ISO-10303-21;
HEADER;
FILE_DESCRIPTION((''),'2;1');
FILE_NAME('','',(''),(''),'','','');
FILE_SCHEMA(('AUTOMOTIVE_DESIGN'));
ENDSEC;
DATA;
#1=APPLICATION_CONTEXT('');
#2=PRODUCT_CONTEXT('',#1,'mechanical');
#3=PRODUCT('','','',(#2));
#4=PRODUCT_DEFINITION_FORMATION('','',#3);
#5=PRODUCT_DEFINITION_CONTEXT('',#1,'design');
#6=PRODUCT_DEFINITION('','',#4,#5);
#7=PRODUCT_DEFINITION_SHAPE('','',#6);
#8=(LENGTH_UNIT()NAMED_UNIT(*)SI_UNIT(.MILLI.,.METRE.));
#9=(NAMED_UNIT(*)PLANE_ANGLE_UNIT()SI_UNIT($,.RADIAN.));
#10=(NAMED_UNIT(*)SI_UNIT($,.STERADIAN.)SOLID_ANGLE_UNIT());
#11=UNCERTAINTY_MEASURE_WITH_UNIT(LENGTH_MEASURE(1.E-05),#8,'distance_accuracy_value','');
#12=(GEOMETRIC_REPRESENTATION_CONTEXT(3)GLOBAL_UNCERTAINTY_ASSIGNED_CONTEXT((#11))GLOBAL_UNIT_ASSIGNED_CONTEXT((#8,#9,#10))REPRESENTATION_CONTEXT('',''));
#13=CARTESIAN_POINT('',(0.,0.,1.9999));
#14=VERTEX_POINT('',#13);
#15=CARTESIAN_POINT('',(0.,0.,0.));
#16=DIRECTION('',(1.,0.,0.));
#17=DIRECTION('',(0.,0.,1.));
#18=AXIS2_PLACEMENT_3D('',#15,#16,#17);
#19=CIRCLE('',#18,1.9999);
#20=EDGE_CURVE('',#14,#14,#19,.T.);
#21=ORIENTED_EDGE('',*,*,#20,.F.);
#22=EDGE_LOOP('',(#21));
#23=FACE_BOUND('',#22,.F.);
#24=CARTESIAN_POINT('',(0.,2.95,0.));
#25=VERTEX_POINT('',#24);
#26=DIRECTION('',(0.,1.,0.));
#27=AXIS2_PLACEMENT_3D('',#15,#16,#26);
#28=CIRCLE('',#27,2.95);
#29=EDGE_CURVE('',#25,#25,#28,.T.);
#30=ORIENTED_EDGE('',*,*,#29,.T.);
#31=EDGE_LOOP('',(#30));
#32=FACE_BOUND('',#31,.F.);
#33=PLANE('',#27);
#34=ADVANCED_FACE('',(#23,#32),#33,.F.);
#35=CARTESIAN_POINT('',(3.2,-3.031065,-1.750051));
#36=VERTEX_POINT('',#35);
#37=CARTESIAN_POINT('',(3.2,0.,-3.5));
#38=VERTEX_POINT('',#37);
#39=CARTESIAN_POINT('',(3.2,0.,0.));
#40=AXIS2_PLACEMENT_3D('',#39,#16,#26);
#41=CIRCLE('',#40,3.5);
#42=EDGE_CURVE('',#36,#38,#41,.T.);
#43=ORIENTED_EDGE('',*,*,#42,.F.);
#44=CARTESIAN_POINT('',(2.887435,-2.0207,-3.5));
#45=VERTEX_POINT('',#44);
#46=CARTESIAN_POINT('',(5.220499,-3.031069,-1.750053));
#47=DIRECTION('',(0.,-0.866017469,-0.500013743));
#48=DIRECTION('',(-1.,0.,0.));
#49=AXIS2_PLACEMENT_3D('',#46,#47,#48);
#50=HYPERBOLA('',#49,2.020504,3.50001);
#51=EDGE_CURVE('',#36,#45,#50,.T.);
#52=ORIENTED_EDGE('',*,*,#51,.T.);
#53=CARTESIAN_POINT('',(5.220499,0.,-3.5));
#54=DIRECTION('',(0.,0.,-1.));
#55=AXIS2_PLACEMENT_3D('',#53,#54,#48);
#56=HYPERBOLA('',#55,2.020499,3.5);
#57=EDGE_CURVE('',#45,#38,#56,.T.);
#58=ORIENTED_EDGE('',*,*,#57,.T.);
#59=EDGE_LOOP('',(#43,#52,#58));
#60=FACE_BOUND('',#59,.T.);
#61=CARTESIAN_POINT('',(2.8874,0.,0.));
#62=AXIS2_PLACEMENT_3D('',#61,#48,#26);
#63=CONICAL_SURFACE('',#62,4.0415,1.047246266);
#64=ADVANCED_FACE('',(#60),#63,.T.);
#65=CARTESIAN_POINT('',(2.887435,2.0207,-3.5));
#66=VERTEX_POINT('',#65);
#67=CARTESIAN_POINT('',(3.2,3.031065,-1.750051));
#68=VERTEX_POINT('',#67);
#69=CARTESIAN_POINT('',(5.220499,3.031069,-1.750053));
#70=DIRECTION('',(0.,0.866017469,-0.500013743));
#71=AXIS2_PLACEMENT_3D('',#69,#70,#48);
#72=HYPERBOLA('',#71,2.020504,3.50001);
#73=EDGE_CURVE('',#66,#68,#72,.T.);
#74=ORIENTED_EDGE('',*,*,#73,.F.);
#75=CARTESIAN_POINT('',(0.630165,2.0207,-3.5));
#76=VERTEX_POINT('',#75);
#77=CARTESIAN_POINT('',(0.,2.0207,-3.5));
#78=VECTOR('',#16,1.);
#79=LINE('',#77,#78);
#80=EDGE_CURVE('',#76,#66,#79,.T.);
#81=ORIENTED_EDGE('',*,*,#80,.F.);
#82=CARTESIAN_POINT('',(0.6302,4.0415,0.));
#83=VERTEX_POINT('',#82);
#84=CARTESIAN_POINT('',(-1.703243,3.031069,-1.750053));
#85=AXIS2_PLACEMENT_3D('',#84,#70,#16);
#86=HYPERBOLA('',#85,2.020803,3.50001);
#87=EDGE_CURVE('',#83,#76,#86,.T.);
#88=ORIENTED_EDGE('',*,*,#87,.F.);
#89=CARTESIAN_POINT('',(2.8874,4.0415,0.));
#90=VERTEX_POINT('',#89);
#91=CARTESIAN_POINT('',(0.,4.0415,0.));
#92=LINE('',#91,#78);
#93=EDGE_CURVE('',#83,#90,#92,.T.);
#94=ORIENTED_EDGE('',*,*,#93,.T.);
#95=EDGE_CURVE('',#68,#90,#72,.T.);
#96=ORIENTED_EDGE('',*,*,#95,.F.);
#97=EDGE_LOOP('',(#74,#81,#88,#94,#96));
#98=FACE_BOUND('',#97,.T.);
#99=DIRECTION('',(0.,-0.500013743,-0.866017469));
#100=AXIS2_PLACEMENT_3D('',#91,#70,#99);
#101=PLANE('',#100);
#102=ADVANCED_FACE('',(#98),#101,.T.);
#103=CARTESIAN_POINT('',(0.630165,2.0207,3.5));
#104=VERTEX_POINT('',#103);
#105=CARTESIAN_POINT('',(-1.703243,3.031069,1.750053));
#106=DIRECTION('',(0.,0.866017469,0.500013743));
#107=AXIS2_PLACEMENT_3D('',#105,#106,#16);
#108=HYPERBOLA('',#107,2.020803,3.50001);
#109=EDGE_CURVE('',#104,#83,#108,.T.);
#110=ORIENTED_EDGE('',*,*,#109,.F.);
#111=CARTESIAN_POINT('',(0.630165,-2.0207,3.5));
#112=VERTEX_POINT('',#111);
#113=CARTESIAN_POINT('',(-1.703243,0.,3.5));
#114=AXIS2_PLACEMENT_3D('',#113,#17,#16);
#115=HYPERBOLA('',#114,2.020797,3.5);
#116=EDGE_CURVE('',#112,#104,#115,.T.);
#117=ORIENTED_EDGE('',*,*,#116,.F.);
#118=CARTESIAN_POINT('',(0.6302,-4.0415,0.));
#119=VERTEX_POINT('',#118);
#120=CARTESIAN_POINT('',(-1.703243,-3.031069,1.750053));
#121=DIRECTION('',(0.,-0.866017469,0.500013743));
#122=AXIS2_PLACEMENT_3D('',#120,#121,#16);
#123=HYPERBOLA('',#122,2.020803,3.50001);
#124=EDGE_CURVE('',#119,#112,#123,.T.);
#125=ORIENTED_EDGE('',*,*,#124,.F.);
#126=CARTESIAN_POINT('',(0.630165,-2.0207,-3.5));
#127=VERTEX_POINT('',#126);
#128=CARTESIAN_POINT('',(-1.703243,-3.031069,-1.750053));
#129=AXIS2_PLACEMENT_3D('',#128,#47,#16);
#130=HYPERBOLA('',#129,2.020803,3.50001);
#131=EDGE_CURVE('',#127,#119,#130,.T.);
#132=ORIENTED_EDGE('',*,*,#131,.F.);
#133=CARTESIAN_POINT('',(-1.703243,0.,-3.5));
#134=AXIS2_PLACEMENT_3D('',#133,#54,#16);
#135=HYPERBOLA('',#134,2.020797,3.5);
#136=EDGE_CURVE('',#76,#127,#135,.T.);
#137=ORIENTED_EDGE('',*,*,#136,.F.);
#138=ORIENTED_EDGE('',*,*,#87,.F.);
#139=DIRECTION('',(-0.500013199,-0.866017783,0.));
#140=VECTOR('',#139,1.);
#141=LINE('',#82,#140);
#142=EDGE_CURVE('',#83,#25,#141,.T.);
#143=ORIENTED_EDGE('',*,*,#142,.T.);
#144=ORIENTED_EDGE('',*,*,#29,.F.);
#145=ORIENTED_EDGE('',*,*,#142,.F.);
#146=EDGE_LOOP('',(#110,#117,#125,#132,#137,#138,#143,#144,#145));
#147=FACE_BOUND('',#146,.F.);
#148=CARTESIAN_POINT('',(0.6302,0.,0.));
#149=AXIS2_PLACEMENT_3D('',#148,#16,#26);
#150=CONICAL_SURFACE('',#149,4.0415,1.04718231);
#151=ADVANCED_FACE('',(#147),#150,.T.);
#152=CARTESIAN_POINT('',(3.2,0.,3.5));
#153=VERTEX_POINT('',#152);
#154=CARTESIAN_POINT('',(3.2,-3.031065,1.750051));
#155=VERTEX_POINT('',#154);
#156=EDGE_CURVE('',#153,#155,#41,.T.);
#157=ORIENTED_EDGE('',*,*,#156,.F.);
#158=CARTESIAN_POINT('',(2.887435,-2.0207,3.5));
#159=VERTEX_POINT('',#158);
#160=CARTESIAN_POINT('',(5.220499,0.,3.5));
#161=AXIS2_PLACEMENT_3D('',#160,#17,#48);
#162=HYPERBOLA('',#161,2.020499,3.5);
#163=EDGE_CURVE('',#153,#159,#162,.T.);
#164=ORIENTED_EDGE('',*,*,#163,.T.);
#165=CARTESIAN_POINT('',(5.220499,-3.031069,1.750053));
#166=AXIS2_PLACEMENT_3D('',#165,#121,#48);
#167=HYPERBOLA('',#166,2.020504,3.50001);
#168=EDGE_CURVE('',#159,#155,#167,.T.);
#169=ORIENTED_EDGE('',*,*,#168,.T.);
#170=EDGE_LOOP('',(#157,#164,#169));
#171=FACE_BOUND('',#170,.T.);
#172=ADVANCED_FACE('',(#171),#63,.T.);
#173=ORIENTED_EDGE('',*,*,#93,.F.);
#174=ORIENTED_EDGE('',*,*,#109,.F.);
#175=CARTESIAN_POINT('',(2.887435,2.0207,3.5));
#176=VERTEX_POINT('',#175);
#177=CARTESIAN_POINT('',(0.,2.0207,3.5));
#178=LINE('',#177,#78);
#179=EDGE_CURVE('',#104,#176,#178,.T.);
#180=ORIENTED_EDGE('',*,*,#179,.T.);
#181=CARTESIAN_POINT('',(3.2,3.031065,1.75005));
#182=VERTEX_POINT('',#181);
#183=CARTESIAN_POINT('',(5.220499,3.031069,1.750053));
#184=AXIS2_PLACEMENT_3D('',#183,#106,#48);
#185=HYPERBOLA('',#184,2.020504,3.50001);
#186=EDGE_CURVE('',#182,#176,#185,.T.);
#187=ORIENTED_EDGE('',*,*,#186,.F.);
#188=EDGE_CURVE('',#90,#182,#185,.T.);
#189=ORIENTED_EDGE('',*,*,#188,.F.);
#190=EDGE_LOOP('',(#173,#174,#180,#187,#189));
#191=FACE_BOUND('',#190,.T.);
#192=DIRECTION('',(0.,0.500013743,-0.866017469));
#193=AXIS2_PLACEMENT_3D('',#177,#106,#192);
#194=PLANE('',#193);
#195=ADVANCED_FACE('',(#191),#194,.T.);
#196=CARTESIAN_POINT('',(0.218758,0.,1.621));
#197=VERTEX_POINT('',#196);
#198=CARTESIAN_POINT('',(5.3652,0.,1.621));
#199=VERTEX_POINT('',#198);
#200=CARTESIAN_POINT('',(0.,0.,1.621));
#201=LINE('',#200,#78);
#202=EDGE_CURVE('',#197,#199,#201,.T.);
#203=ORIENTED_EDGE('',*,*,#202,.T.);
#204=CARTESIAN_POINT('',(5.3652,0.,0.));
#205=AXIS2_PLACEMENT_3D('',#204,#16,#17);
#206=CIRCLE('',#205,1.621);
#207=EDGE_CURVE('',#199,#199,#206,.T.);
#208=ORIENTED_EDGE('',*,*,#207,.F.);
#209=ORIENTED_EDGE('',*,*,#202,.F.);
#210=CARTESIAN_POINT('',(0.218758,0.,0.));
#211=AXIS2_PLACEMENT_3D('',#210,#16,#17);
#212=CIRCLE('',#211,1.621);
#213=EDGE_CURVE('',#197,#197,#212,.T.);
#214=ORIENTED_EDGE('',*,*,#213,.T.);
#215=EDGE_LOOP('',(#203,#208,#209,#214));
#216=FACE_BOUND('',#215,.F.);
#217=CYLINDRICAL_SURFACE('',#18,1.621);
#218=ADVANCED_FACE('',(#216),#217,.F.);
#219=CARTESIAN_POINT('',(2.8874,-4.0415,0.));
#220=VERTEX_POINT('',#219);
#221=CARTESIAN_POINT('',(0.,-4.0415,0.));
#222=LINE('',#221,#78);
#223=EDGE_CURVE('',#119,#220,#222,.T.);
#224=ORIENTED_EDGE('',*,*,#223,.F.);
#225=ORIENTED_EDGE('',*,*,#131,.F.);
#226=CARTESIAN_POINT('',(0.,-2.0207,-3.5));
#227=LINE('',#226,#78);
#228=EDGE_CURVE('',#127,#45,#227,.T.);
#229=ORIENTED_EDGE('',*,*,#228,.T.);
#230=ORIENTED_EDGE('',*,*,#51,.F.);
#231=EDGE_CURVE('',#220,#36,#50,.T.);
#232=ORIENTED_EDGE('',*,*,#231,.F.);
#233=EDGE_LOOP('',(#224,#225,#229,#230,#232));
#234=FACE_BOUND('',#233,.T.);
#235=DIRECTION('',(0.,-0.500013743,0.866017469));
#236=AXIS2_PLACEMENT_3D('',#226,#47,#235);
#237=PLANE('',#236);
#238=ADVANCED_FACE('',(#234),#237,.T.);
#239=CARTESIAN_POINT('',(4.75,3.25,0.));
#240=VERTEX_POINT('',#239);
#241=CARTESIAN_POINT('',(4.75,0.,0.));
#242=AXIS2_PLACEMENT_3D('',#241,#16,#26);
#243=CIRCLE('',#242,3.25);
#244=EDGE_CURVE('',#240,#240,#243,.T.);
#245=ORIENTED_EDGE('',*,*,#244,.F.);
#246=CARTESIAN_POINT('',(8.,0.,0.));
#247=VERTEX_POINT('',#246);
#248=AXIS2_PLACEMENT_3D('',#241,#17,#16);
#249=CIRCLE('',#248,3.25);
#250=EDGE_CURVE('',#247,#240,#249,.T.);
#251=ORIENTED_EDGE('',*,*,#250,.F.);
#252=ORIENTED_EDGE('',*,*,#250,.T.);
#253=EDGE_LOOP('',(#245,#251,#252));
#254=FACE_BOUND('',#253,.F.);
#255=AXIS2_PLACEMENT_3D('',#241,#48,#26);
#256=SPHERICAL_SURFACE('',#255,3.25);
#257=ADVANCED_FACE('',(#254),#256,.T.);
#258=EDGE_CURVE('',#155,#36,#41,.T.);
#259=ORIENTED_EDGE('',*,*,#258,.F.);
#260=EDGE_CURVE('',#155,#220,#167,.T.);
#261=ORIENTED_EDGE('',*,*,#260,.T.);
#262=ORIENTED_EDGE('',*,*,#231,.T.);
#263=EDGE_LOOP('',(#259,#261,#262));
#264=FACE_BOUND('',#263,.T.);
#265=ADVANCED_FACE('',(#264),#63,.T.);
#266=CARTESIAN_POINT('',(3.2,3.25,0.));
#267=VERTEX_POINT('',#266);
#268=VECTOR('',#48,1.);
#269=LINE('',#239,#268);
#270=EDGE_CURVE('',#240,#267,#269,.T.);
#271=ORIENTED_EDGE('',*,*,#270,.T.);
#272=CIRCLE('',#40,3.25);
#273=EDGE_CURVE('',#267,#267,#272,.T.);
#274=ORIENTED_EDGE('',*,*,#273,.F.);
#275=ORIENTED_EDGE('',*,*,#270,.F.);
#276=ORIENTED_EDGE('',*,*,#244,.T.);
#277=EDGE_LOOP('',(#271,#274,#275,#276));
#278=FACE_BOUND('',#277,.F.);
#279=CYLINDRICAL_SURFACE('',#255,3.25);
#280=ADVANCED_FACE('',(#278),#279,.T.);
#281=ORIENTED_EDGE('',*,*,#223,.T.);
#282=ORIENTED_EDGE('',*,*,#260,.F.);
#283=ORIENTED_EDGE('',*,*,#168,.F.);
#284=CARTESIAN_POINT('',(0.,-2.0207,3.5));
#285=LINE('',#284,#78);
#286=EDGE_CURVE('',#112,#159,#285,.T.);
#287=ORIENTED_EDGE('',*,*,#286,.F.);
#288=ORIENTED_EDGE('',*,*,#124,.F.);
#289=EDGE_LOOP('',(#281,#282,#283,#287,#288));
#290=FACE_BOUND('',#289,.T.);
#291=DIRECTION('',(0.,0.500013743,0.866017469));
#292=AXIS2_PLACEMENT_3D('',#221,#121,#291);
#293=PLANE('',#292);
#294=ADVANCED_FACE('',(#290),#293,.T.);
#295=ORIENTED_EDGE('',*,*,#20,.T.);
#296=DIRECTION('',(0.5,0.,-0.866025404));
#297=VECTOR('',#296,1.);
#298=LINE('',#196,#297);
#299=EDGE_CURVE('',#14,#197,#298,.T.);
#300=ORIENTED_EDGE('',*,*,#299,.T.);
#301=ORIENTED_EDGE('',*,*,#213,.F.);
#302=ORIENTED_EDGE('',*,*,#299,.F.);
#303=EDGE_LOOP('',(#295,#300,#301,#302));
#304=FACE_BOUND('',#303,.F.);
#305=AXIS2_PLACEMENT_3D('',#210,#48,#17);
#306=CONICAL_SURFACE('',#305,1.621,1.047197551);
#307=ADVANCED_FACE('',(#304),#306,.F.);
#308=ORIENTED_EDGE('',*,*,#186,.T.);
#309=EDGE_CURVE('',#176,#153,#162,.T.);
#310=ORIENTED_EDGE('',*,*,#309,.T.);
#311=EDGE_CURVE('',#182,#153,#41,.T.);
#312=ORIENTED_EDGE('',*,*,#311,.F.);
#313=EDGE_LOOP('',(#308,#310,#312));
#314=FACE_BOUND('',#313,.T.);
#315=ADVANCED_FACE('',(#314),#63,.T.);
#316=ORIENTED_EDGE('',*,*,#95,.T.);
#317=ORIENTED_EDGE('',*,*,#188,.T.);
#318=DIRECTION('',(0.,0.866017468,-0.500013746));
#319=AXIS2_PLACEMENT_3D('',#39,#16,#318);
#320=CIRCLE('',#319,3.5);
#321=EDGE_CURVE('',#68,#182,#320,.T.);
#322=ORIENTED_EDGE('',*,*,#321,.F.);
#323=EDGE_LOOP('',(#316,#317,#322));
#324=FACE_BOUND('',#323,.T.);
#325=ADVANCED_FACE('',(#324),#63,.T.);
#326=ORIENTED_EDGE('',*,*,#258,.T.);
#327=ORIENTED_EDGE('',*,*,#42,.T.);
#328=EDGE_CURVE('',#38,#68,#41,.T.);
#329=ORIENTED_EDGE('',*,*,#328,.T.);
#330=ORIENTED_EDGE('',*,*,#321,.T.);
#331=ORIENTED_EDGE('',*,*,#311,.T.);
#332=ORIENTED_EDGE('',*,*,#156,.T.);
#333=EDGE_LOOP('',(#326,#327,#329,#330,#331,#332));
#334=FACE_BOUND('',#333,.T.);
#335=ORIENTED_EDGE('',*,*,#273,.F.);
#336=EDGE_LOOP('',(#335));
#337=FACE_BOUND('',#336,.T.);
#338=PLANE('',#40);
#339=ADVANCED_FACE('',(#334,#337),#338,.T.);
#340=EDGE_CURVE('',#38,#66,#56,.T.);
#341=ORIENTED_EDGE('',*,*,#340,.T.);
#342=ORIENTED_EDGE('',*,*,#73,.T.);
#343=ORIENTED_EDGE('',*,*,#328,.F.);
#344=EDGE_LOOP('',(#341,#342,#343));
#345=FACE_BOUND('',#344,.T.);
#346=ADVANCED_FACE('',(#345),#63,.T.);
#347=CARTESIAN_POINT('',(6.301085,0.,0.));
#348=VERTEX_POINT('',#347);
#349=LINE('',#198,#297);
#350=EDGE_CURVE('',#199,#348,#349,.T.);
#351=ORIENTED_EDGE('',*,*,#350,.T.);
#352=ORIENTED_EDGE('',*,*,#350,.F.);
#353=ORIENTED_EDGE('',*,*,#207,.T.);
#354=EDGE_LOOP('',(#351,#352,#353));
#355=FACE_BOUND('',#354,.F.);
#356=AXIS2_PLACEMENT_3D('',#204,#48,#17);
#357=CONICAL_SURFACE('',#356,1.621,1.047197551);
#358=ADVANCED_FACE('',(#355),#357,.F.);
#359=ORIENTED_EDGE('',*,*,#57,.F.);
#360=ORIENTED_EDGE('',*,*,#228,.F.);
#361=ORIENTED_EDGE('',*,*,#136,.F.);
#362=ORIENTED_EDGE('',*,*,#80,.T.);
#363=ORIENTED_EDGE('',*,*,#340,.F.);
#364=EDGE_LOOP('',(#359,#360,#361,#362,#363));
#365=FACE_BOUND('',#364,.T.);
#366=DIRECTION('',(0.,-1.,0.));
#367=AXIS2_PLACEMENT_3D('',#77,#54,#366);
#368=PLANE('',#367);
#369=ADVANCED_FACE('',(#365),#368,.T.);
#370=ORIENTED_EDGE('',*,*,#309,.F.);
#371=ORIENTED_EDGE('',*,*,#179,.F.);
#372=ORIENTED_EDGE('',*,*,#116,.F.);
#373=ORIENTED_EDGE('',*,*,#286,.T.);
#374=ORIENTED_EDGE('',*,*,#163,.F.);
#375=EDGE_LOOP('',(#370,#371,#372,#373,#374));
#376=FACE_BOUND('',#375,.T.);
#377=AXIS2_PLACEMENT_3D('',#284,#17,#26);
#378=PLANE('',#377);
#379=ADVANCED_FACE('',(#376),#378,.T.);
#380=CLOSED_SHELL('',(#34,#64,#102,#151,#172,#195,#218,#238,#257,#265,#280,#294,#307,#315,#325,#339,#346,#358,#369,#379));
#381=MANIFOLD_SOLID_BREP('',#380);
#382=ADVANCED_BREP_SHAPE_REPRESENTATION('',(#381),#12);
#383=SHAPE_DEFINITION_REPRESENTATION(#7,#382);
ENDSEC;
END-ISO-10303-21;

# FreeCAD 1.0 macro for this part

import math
import FreeCAD as App
import Part
import Sketcher
Q = App.Units.Quantity


def edges_at(feature, points):
    """Names of the edges that pass closest to the given points."""
    edges = feature.Shape.Edges
    near = lambda p: min(range(len(edges)), key=lambda i: edges[i].distToShape(Part.Vertex(*p))[0])
    return sorted({f"Edge{near(p) + 1}" for p in points})

doc = App.newDocument("Part")
body = doc.addObject("PartDesign::Body", "Body")

sketch1 = doc.addObject("Sketcher::SketchObject", "Sketch")
body.addObject(sketch1)
sketch1.AttachmentSupport = (doc.YZ_Plane, [""])
sketch1.MapMode = "FlatFace"
sketch1.addGeometry([
    Part.LineSegment(App.Vector(-4, 0, 0), App.Vector(-2, -3.5, 0)),
    Part.LineSegment(App.Vector(-2, -3.5, 0), App.Vector(2, -3.5, 0)),
    Part.LineSegment(App.Vector(2, -3.5, 0), App.Vector(4, 0, 0)),
    Part.LineSegment(App.Vector(4, 0, 0), App.Vector(2, 3.5, 0)),
    Part.LineSegment(App.Vector(2, 3.5, 0), App.Vector(-2, 3.5, 0)),
    Part.LineSegment(App.Vector(-2, 3.5, 0), App.Vector(-4, 0, 0)),
], False)
sketch1.addConstraint([
    Sketcher.Constraint("Coincident", 0, 2, 1, 1),
    Sketcher.Constraint("Coincident", 1, 2, 2, 1),
    Sketcher.Constraint("Coincident", 2, 2, 3, 1),
    Sketcher.Constraint("Coincident", 3, 2, 4, 1),
    Sketcher.Constraint("Coincident", 4, 2, 5, 1),
    Sketcher.Constraint("Coincident", 5, 2, 0, 1),
    Sketcher.Constraint("Horizontal", 1),
    Sketcher.Constraint("Horizontal", 4),
    Sketcher.Constraint("Symmetric", 0, 2, 3, 2, -1, 1),
    Sketcher.Constraint("Symmetric", 2, 2, 5, 2, -1, 1),
    Sketcher.Constraint("PointOnObject", 2, 2, -1),
    Sketcher.Constraint("Parallel", 2, 5),
    Sketcher.Constraint("Vertical", 1, 2, 3, 2),
    Sketcher.Constraint("Angle", 0, Q("-59.999 deg")),
    Sketcher.Constraint("DistanceY", 1, 2, 3, 2, 7.0),
    Sketcher.Constraint("DistanceX", 5, 2, 2, 2, 8.083),
])
pad1 = doc.addObject("PartDesign::Pad", "Pad")
body.addObject(pad1)
pad1.Profile = sketch1
pad1.Length = 3.2

sketch2 = doc.addObject("Sketcher::SketchObject", "Sketch001")
body.addObject(sketch2)
sketch2.AttachmentSupport = (doc.XY_Plane, [""])
sketch2.MapMode = "FlatFace"
sketch2.addGeometry([
    Part.LineSegment(App.Vector(3.2, 3.2, 0), App.Vector(3.2, 0, 0)),
    Part.LineSegment(App.Vector(3.2, 0, 0), App.Vector(8, 0, 0)),
    Part.ArcOfCircle(Part.Circle(App.Vector(4.8, 0, 0), App.Vector(0, 0, 1), 3.2), math.radians(0), math.radians(90)),
    Part.LineSegment(App.Vector(4.8, 3.2, 0), App.Vector(3.2, 3.2, 0)),
], False)
sketch2.addConstraint([
    Sketcher.Constraint("Coincident", 0, 2, 1, 1),
    Sketcher.Constraint("Coincident", 1, 2, 2, 1),
    Sketcher.Constraint("Tangent", 2, 2, 3, 1),
    Sketcher.Constraint("Coincident", 3, 2, 0, 1),
    Sketcher.Constraint("Vertical", 0),
    Sketcher.Constraint("Horizontal", 1),
    Sketcher.Constraint("Horizontal", 3),
    Sketcher.Constraint("PointOnObject", 2, 3, -1),
    Sketcher.Constraint("PointOnObject", 0, 2, -1),
    Sketcher.Constraint("Radius", 2, 3.25),
    Sketcher.Constraint("DistanceX", 1, 1, 1, 2, 4.8),
    Sketcher.Constraint("DistanceX", -1, 1, 1, 2, 8.0),
])
revolution = doc.addObject("PartDesign::Revolution", "Revolution")
body.addObject(revolution)
revolution.Profile = sketch2
revolution.ReferenceAxis = (sketch2, ["H_Axis"])
revolution.Angle = 360

sketch3 = doc.addObject("Sketcher::SketchObject", "Sketch002")
body.addObject(sketch3)
sketch3.AttachmentSupport = (doc.YZ_Plane, [""])
sketch3.MapMode = "FlatFace"
sketch3.addGeometry(Part.Circle(App.Vector(0, 0, 0), App.Vector(0, 0, 1), 1.6), False)
sketch3.addConstraint([
    Sketcher.Constraint("Coincident", 0, 3, -1, 1),
    Sketcher.Constraint("Diameter", 0, 3.242),
])
doc.recompute()
hole = doc.addObject("PartDesign::Hole", "Hole")
body.addObject(hole)
hole.Profile = sketch3
hole.ThreadType = "None"
hole.Diameter = 3.242
hole.DepthType = "Dimension"
hole.Depth = 5.3652
hole.DrillPoint = "Angled"
hole.DrillPointAngle = 120
hole.Reversed = True

sketch4 = doc.addObject("Sketcher::SketchObject", "Sketch003")
body.addObject(sketch4)
sketch4.AttachmentSupport = (doc.XY_Plane, [""])
sketch4.MapMode = "FlatFace"
sketch4.addGeometry([
    Part.LineSegment(App.Vector(3.2, 4.04, 0), App.Vector(2.89, 4.04, 0)),
    Part.LineSegment(App.Vector(2.89, 4.04, 0), App.Vector(3.2, 3.5, 0)),
    Part.LineSegment(App.Vector(3.2, 3.5, 0), App.Vector(3.2, 4.04, 0)),
    Part.LineSegment(App.Vector(0, 4.04, 0), App.Vector(0, 2.95, 0)),
    Part.LineSegment(App.Vector(0, 2.95, 0), App.Vector(0.63, 4.04, 0)),
    Part.LineSegment(App.Vector(0.63, 4.04, 0), App.Vector(0, 4.04, 0)),
], False)
sketch4.addConstraint([
    Sketcher.Constraint("Coincident", 0, 2, 1, 1),
    Sketcher.Constraint("Coincident", 1, 2, 2, 1),
    Sketcher.Constraint("Coincident", 2, 2, 0, 1),
    Sketcher.Constraint("Coincident", 3, 2, 4, 1),
    Sketcher.Constraint("Coincident", 4, 2, 5, 1),
    Sketcher.Constraint("Coincident", 5, 2, 3, 1),
    Sketcher.Constraint("Horizontal", 0),
    Sketcher.Constraint("Vertical", 2),
    Sketcher.Constraint("Vertical", 3),
    Sketcher.Constraint("Horizontal", 5),
    Sketcher.Constraint("PointOnObject", 3, 2, -2),
    Sketcher.Constraint("Horizontal", 2, 2, 4, 2),
    Sketcher.Constraint("Angle", 4, Q("59.9991 deg")),
    Sketcher.Constraint("DistanceX", -1, 1, 1, 2, 3.2),
    Sketcher.Constraint("DistanceY", -1, 1, 1, 2, 3.5),
    Sketcher.Constraint("DistanceY", -1, 1, 3, 2, 2.95),
    Sketcher.Constraint("DistanceX", 0, 2, 0, 1, 0.3126),
    Sketcher.Constraint("DistanceX", 5, 2, 5, 1, 0.6302),
])
groove = doc.addObject("PartDesign::Groove", "Groove")
body.addObject(groove)
groove.Profile = sketch4
groove.ReferenceAxis = (sketch4, ["H_Axis"])
groove.Angle = 360
doc.recompute()

chamfer = doc.addObject("PartDesign::Chamfer", "Chamfer")
body.addObject(chamfer)
chamfer.Base = (groove, edges_at(groove, [(0, 0, -1.621)]))
chamfer.ChamferType = "Distance and Angle"
chamfer.Size = 0.3789
chamfer.Angle = 30

doc.recompute()
